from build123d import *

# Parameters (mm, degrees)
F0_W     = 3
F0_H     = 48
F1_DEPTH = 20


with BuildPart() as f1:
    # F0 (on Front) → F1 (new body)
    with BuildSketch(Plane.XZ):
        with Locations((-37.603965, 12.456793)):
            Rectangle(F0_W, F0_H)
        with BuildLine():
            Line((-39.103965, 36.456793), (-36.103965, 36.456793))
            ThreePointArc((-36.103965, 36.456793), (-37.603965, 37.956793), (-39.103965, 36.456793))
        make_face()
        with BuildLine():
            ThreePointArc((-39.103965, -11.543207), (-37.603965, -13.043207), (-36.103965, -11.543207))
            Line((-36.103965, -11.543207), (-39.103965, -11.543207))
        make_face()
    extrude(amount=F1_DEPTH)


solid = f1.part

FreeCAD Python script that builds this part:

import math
import FreeCAD as App
import Part
import Sketcher

doc = App.newDocument("Part")
body = doc.addObject("PartDesign::Body", "Body")

sketch1 = doc.addObject("Sketcher::SketchObject", "Sketch")
body.addObject(sketch1)
sketch1.AttachmentSupport = (doc.XZ_Plane, [""])
sketch1.MapMode = "FlatFace"
sketch1.addGeometry([
    Part.LineSegment(App.Vector(-39.1, 36.5, 0), App.Vector(-39.1, -11.5, 0)),
    Part.ArcOfCircle(Part.Circle(App.Vector(-37.6, -11.5, 0), App.Vector(0, 0, 1), 1.5), math.radians(180), math.radians(360)),
    Part.LineSegment(App.Vector(-36.1, -11.5, 0), App.Vector(-36.1, 36.5, 0)),
    Part.ArcOfCircle(Part.Circle(App.Vector(-37.6, 36.5, 0), App.Vector(0, 0, 1), 1.5), math.radians(0), math.radians(180)),
], False)
sketch1.addConstraint([
    Sketcher.Constraint("Tangent", 0, 2, 1, 1),
    Sketcher.Constraint("Tangent", 1, 2, 2, 1),
    Sketcher.Constraint("Tangent", 2, 2, 3, 1),
    Sketcher.Constraint("Tangent", 3, 2, 0, 1),
    Sketcher.Constraint("Vertical", 0),
    Sketcher.Constraint("Vertical", 2),
    Sketcher.Constraint("Radius", 1, 1.5),
    Sketcher.Constraint("DistanceY", 0, 2, 0, 1, 48.0),
    Sketcher.Constraint("DistanceX", 1, 3, -1, 1, 37.603965),
    Sketcher.Constraint("DistanceY", 1, 3, -1, 1, 11.543207),
])
pad1 = doc.addObject("PartDesign::Pad", "Pad")
body.addObject(pad1)
pad1.Profile = sketch1
pad1.Length = 20

doc.recompute()
